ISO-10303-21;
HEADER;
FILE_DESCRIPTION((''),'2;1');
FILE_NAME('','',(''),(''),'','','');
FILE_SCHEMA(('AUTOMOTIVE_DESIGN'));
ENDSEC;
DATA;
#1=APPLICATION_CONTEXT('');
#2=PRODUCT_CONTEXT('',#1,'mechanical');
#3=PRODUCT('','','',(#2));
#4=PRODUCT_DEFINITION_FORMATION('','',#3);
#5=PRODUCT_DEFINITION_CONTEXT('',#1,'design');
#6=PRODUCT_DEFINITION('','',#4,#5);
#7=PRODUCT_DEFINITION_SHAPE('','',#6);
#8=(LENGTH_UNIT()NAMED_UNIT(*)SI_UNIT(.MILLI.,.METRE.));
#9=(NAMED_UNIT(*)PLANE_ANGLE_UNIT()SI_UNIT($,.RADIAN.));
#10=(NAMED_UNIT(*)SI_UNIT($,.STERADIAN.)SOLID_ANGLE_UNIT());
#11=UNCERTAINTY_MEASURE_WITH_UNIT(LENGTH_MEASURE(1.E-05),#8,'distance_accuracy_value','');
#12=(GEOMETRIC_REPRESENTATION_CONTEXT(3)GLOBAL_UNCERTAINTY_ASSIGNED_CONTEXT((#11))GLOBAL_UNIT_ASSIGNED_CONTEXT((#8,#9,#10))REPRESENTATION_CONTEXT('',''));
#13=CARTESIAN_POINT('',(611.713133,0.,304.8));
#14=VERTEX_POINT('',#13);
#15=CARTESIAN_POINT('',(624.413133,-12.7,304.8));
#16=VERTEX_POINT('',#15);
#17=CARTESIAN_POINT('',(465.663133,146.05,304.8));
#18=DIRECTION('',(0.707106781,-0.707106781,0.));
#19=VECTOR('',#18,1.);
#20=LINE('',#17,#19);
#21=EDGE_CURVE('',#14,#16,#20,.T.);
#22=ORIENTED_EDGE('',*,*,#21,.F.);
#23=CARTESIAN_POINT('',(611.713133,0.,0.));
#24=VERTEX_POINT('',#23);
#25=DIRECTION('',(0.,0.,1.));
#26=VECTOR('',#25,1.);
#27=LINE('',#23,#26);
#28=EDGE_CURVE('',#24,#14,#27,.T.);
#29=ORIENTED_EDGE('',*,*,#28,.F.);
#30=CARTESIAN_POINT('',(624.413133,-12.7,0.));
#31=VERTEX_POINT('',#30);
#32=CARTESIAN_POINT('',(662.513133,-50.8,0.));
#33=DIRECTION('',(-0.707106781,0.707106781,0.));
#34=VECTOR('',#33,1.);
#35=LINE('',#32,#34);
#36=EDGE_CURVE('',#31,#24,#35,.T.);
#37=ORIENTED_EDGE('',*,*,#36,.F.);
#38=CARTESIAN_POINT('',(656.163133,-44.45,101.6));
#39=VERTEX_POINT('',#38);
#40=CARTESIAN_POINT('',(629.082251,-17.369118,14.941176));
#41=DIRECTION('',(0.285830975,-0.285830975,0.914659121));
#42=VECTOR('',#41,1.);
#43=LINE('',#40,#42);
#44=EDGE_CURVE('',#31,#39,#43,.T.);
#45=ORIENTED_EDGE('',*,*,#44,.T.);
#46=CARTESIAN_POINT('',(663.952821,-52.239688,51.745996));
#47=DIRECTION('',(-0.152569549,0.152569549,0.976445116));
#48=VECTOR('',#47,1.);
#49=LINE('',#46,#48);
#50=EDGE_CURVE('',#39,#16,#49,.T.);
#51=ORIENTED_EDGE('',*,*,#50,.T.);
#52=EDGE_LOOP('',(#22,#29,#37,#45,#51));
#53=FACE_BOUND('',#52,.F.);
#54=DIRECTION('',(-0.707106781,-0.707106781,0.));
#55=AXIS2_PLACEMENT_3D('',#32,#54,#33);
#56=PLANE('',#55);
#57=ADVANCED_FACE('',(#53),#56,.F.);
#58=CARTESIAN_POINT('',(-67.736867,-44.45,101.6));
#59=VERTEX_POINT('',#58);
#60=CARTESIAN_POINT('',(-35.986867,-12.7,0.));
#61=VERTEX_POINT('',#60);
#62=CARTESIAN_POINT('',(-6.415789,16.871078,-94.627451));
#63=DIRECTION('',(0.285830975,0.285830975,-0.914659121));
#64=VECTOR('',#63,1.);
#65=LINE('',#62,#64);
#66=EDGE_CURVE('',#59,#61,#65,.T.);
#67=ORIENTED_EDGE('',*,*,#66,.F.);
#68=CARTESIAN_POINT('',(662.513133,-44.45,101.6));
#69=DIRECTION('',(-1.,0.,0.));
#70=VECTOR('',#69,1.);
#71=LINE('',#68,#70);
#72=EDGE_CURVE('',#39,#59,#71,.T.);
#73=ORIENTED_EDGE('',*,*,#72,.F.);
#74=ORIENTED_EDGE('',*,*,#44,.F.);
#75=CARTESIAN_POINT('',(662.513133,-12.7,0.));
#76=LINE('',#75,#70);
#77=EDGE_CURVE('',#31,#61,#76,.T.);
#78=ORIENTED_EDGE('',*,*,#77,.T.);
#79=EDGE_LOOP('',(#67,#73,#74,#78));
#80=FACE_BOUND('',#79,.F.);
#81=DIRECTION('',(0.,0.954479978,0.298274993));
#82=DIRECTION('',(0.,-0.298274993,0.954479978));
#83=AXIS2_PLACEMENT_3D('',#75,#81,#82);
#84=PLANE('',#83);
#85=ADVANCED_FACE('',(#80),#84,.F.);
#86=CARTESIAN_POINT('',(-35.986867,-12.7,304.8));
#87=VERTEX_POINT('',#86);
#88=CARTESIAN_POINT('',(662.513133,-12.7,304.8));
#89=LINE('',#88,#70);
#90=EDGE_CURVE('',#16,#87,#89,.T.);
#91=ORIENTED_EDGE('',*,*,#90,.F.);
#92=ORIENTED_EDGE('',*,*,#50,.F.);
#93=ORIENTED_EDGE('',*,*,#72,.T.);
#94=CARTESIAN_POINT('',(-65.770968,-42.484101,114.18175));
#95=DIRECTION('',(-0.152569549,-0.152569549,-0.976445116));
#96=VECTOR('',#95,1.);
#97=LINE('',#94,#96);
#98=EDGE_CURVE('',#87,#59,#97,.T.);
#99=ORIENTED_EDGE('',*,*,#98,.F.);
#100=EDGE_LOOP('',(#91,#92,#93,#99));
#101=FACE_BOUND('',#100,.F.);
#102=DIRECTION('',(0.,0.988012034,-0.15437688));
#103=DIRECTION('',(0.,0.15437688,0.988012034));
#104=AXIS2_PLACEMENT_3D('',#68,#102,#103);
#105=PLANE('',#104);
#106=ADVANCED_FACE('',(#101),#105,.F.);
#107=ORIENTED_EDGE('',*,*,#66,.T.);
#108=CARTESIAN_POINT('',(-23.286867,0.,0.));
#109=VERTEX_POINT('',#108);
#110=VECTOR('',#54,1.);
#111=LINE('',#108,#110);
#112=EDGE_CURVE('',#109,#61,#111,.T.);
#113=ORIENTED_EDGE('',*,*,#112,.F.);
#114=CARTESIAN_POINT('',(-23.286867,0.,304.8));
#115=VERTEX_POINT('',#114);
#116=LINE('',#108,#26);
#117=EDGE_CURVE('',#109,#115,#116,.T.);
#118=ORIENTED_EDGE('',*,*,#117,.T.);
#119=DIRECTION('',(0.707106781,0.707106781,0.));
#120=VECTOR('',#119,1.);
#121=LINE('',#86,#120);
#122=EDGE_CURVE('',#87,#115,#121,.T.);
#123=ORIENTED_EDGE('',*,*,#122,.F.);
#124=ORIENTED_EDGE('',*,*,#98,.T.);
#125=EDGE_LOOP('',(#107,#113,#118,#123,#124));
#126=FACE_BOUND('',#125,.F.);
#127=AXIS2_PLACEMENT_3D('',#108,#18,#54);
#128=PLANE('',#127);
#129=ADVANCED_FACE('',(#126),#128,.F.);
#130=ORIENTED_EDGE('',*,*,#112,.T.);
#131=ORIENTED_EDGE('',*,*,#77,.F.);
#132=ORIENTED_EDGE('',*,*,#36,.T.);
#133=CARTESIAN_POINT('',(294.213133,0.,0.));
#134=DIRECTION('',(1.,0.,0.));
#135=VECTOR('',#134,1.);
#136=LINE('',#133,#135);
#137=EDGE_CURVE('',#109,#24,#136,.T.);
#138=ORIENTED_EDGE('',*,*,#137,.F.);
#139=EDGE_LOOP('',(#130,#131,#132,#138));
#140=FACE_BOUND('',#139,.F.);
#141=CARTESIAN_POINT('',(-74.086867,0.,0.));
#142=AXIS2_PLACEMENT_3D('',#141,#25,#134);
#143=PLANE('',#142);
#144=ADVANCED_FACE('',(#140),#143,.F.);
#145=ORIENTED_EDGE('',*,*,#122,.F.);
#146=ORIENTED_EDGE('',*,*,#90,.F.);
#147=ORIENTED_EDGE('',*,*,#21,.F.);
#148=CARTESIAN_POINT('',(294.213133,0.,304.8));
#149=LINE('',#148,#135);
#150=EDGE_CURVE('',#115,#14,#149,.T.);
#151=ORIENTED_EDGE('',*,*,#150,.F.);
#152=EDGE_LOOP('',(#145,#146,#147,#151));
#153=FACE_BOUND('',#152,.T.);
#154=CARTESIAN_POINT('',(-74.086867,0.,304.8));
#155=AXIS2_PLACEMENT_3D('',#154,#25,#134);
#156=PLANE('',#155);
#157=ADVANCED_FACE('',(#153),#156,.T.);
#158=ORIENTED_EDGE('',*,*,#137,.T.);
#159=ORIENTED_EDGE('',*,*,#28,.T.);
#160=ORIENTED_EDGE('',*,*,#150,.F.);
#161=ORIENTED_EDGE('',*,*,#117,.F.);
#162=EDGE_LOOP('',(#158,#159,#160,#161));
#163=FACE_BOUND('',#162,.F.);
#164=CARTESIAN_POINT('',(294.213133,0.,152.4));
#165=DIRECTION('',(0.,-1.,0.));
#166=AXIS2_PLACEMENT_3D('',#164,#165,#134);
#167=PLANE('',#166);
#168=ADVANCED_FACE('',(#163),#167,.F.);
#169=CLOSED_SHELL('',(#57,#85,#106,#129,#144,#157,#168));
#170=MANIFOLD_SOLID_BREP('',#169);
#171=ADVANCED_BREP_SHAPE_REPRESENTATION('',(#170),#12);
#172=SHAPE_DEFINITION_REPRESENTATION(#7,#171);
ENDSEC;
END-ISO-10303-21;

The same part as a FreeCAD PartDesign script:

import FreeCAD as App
import Part
import Sketcher
from FreeCAD import Vector
Q = App.Units.Quantity

doc = App.newDocument("Part")
params = doc.addObject("Spreadsheet::Sheet", "Params")
for row, (alias, value) in enumerate([
    ("sketch1_width", "29 in"),
    ("sketch1_height", "12 in"),
    ("pad1_length", "1.75 in"),
    ("sketch2_height", "12 in"),
    ("sketch3_width", "2 in"),
], start=1):
    params.set(f"A{row}", alias)
    params.set(f"B{row}", "=" + value)
    params.setAlias(f"B{row}", alias)

body = doc.addObject("PartDesign::Body", "Body")

sketch1 = doc.addObject("Sketcher::SketchObject", "Sketch")
body.addObject(sketch1)
sketch1.AttachmentSupport = (doc.XZ_Plane, [""])
sketch1.MapMode = "FlatFace"
sketch1.addGeometry([
    Part.LineSegment(Vector(-74, 305, 0), Vector(-74, 0, 0)),
    Part.LineSegment(Vector(-74, 0, 0), Vector(663, 0, 0)),
    Part.LineSegment(Vector(663, 0, 0), Vector(663, 305, 0)),
    Part.LineSegment(Vector(663, 305, 0), Vector(-74, 305, 0)),
], False)
sketch1.addConstraint([
    Sketcher.Constraint("Coincident", 0, 2, 1, 1),
    Sketcher.Constraint("Coincident", 1, 2, 2, 1),
    Sketcher.Constraint("Coincident", 2, 2, 3, 1),
    Sketcher.Constraint("Coincident", 3, 2, 0, 1),
    Sketcher.Constraint("Vertical", 0),
    Sketcher.Constraint("Horizontal", 1),
    Sketcher.Constraint("Vertical", 2),
    Sketcher.Constraint("Horizontal", 3),
    Sketcher.Constraint("PointOnObject", 0, 2, -1),
    Sketcher.Constraint("DistanceX", 1, 1, 1, 2, Q("29 in")),
    Sketcher.Constraint("DistanceY", 0, 2, 0, 1, Q("12 in")),
    Sketcher.Constraint("DistanceX", 0, 2, -1, 1, Q("74.086867 mm")),
])
sketch1.setExpression("Constraints[9]", "Params.sketch1_width")
sketch1.setExpression("Constraints[10]", "Params.sketch1_height")
pad1 = doc.addObject("PartDesign::Pad", "Pad")
body.addObject(pad1)
pad1.Profile = sketch1
pad1.setExpression("Length", "Params.pad1_length")

sketch2 = doc.addObject("Sketcher::SketchObject", "Sketch001")
body.addObject(sketch2)
sketch2.AttachmentSupport = (doc.YZ_Plane, [""])
sketch2.MapMode = "FlatFace"
sketch2.AttachmentOffset = App.Placement(Vector(0, 0, 662.513133), App.Rotation())
sketch2.addGeometry([
    Part.LineSegment(Vector(-44, 102, 0), Vector(-13, 305, 0)),
    Part.LineSegment(Vector(-13, 305, 0), Vector(-83, 305, 0)),
    Part.LineSegment(Vector(-83, 305, 0), Vector(-83, 0, 0)),
    Part.LineSegment(Vector(-83, 0, 0), Vector(-13, 0, 0)),
    Part.LineSegment(Vector(-13, 0, 0), Vector(-44, 102, 0)),
], False)
sketch2.addConstraint([
    Sketcher.Constraint("Coincident", 0, 2, 1, 1),
    Sketcher.Constraint("Coincident", 1, 2, 2, 1),
    Sketcher.Constraint("Coincident", 2, 2, 3, 1),
    Sketcher.Constraint("Coincident", 3, 2, 4, 1),
    Sketcher.Constraint("Coincident", 4, 2, 0, 1),
    Sketcher.Constraint("Horizontal", 1),
    Sketcher.Constraint("Vertical", 2),
    Sketcher.Constraint("Horizontal", 3),
    Sketcher.Constraint("PointOnObject", 2, 2, -1),
    Sketcher.Constraint("Vertical", 0, 2, 3, 2),
    Sketcher.Constraint("DistanceY", 2, 2, 2, 1, Q("12 in")),
    Sketcher.Constraint("DistanceY", -1, 1, 4, 2, Q("4 in")),
    Sketcher.Constraint("DistanceX", 0, 2, -1, 1, Q("0.5 in")),
    Sketcher.Constraint("DistanceX", 4, 2, -1, 1, Q("1.75 in")),
    Sketcher.Constraint("DistanceX", 1, 2, 1, 1, Q("70.139599 mm")),
])
sketch2.setExpression("Constraints[10]", "Params.sketch2_height")
pocket1 = doc.addObject("PartDesign::Pocket", "Pocket")
body.addObject(pocket1)
pocket1.Profile = sketch2
pocket1.Type = "ThroughAll"

sketch3 = doc.addObject("Sketcher::SketchObject", "Sketch002")
body.addObject(sketch3)
sketch3.AttachmentSupport = (doc.XY_Plane, [""])
sketch3.MapMode = "FlatFace"
sketch3.addGeometry([
    Part.LineSegment(Vector(663, 0, 0), Vector(663, -51, 0)),
    Part.LineSegment(Vector(663, -51, 0), Vector(612, 0, 0)),
    Part.LineSegment(Vector(612, 0, 0), Vector(663, 0, 0)),
    Part.LineSegment(Vector(-23, 0, 0), Vector(-74, -51, 0)),
    Part.LineSegment(Vector(-74, -51, 0), Vector(-74, 0, 0)),
    Part.LineSegment(Vector(-74, 0, 0), Vector(-23, 0, 0)),
], False)
sketch3.addConstraint([
    Sketcher.Constraint("Coincident", 0, 2, 1, 1),
    Sketcher.Constraint("Coincident", 1, 2, 2, 1),
    Sketcher.Constraint("Coincident", 2, 2, 0, 1),
    Sketcher.Constraint("Coincident", 3, 2, 4, 1),
    Sketcher.Constraint("Coincident", 4, 2, 5, 1),
    Sketcher.Constraint("Coincident", 5, 2, 3, 1),
    Sketcher.Constraint("Vertical", 0),
    Sketcher.Constraint("Horizontal", 2),
    Sketcher.Constraint("Vertical", 4),
    Sketcher.Constraint("Horizontal", 5),
    Sketcher.Constraint("PointOnObject", 1, 2, -1),
    Sketcher.Constraint("PointOnObject", 4, 2, -1),
    Sketcher.Constraint("Perpendicular", 1, 3),
    Sketcher.Constraint("Horizontal", 0, 2, 3, 2),
    Sketcher.Constraint("Equal", 2, 5),
    Sketcher.Constraint("DistanceX", 2, 1, 2, 2, Q("2 in")),
    Sketcher.Constraint("DistanceX", 3, 2, 1, 2, Q("27 in")),
    Sketcher.Constraint("DistanceX", -1, 1, 0, 2, Q("662.513133 mm")),
])
sketch3.setExpression("Constraints[15]", "Params.sketch3_width")
pocket2 = doc.addObject("PartDesign::Pocket", "Pocket001")
body.addObject(pocket2)
pocket2.Profile = sketch3
pocket2.Type = "ThroughAll"
pocket2.Reversed = True

doc.recompute()
